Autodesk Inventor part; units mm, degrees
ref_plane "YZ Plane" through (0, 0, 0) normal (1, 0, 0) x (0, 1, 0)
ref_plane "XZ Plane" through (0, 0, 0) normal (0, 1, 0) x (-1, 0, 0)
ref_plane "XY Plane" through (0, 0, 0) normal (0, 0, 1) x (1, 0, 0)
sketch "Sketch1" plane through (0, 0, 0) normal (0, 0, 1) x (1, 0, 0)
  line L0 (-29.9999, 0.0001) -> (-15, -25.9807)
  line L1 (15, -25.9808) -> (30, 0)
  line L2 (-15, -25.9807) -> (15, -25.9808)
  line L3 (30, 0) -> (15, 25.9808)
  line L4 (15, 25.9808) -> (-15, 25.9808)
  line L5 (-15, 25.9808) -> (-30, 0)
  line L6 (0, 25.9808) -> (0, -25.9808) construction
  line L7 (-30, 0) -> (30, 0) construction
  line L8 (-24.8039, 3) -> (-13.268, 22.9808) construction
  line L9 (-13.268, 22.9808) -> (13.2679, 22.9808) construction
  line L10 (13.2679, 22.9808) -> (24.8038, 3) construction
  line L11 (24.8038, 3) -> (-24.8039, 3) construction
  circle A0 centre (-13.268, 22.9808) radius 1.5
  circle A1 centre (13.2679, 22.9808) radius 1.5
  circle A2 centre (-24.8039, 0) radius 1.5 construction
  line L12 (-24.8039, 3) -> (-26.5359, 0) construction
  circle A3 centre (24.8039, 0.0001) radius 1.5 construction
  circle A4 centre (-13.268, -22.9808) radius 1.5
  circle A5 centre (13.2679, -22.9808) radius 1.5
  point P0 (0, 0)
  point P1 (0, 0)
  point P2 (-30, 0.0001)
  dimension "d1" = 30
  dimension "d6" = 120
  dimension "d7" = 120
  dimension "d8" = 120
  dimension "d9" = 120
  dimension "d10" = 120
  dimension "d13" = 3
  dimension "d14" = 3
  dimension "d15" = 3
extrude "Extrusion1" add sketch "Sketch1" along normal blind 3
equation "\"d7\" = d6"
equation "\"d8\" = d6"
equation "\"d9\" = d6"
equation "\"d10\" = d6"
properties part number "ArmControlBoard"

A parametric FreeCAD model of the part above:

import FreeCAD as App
import Part
import Sketcher
Q = App.Units.Quantity

doc = App.newDocument("Part")
params = doc.addObject("Spreadsheet::Sheet", "Params")
for row, (alias, value) in enumerate([
    ("sketch1_diameter", "3 mm"),
    ("sketch1_width", "30 mm"),
    ("sketch1_length", "30 mm"),
    ("pad1_length", "3 mm"),
], start=1):
    params.set(f"A{row}", alias)
    params.set(f"B{row}", "=" + value)
    params.setAlias(f"B{row}", alias)

body = doc.addObject("PartDesign::Body", "Body")

# Sketch on XY plane
sketch1 = body.newObject("Sketcher::SketchObject", "Sketch")
sketch1.AttachmentSupport = (doc.getObject("XY_Plane"), [""])
sketch1.MapMode = "FlatFace"
sketch1.addGeometry(Part.LineSegment(App.Vector(-15, 26, 0), App.Vector(-30, 0, 0)), False)
sketch1.addGeometry(Part.LineSegment(App.Vector(-30, 0, 0), App.Vector(-15, -26, 0)), False)
sketch1.addGeometry(Part.LineSegment(App.Vector(-15, -26, 0), App.Vector(15, -26, 0)), False)
sketch1.addGeometry(Part.LineSegment(App.Vector(15, -26, 0), App.Vector(30, 0, 0)), False)
sketch1.addGeometry(Part.LineSegment(App.Vector(30, 0, 0), App.Vector(15, 26, 0)), False)
sketch1.addGeometry(Part.LineSegment(App.Vector(15, 26, 0), App.Vector(-15, 26, 0)), False)
sketch1.addGeometry(Part.Circle(App.Vector(-13.3, -23, 0), App.Vector(0, 0, 1), 1.5), False)
sketch1.addGeometry(Part.Circle(App.Vector(13.3, -23, 0), App.Vector(0, 0, 1), 1.5), False)
sketch1.addGeometry(Part.Circle(App.Vector(-13.3, 23, 0), App.Vector(0, 0, 1), 1.5), False)
sketch1.addGeometry(Part.Circle(App.Vector(13.3, 23, 0), App.Vector(0, 0, 1), 1.5), False)
sketch1.addConstraint(Sketcher.Constraint("Coincident", 0, 2, 1, 1))
sketch1.addConstraint(Sketcher.Constraint("Coincident", 1, 2, 2, 1))
sketch1.addConstraint(Sketcher.Constraint("Coincident", 2, 2, 3, 1))
sketch1.addConstraint(Sketcher.Constraint("Coincident", 3, 2, 4, 1))
sketch1.addConstraint(Sketcher.Constraint("Coincident", 4, 2, 5, 1))
sketch1.addConstraint(Sketcher.Constraint("Coincident", 5, 2, 0, 1))
sketch1.addConstraint(Sketcher.Constraint("Horizontal", 2))
sketch1.addConstraint(Sketcher.Constraint("Horizontal", 5))
sketch1.addConstraint(Sketcher.Constraint("Equal", 6, 7))
sketch1.addConstraint(Sketcher.Constraint("Equal", 7, 8))
sketch1.addConstraint(Sketcher.Constraint("Equal", 8, 9))
sketch1.addConstraint(Sketcher.Constraint("Symmetric", 7, 3, 8, 3, -1, 1))
sketch1.addConstraint(Sketcher.Constraint("Symmetric", 6, 3, 9, 3, -1, 1))
sketch1.addConstraint(Sketcher.Constraint("Symmetric", 0, 2, 3, 2, -1, 1))
sketch1.addConstraint(Sketcher.Constraint("Symmetric", 1, 2, 4, 2, -1, 1))
sketch1.addConstraint(Sketcher.Constraint("Symmetric", 6, 3, 7, 3, -2))
sketch1.addConstraint(Sketcher.Constraint("PointOnObject", 0, 2, -1))
sketch1.addConstraint(Sketcher.Constraint("Parallel", 0, 3))
sketch1.addConstraint(Sketcher.Constraint("Vertical", 2, 2, 4, 2))
sketch1.addConstraint(Sketcher.Constraint("Diameter", 6, 3.0))
sketch1.addConstraint(Sketcher.Constraint("DistanceX", 2, 1, 2, 2, 30.0))
sketch1.addConstraint(Sketcher.Constraint("Angle", 0, Q("-120 deg")))
sketch1.addConstraint(Sketcher.Constraint("Distance", 0, 30.0))
sketch1.addConstraint(Sketcher.Constraint("DistanceY", 1, 2, 6, 3, 3.0))
sketch1.addConstraint(Sketcher.Constraint("DistanceX", 6, 3, -1, 1, 13.268))
sketch1.setExpression("Constraints[19]", "Params.sketch1_diameter")
sketch1.setExpression("Constraints[20]", "Params.sketch1_width")
sketch1.setExpression("Constraints[22]", "Params.sketch1_length")
pad1 = body.newObject("PartDesign::Pad", "Pad")
pad1.Profile = sketch1
pad1.setExpression("Length", "Params.pad1_length")

doc.recompute()
